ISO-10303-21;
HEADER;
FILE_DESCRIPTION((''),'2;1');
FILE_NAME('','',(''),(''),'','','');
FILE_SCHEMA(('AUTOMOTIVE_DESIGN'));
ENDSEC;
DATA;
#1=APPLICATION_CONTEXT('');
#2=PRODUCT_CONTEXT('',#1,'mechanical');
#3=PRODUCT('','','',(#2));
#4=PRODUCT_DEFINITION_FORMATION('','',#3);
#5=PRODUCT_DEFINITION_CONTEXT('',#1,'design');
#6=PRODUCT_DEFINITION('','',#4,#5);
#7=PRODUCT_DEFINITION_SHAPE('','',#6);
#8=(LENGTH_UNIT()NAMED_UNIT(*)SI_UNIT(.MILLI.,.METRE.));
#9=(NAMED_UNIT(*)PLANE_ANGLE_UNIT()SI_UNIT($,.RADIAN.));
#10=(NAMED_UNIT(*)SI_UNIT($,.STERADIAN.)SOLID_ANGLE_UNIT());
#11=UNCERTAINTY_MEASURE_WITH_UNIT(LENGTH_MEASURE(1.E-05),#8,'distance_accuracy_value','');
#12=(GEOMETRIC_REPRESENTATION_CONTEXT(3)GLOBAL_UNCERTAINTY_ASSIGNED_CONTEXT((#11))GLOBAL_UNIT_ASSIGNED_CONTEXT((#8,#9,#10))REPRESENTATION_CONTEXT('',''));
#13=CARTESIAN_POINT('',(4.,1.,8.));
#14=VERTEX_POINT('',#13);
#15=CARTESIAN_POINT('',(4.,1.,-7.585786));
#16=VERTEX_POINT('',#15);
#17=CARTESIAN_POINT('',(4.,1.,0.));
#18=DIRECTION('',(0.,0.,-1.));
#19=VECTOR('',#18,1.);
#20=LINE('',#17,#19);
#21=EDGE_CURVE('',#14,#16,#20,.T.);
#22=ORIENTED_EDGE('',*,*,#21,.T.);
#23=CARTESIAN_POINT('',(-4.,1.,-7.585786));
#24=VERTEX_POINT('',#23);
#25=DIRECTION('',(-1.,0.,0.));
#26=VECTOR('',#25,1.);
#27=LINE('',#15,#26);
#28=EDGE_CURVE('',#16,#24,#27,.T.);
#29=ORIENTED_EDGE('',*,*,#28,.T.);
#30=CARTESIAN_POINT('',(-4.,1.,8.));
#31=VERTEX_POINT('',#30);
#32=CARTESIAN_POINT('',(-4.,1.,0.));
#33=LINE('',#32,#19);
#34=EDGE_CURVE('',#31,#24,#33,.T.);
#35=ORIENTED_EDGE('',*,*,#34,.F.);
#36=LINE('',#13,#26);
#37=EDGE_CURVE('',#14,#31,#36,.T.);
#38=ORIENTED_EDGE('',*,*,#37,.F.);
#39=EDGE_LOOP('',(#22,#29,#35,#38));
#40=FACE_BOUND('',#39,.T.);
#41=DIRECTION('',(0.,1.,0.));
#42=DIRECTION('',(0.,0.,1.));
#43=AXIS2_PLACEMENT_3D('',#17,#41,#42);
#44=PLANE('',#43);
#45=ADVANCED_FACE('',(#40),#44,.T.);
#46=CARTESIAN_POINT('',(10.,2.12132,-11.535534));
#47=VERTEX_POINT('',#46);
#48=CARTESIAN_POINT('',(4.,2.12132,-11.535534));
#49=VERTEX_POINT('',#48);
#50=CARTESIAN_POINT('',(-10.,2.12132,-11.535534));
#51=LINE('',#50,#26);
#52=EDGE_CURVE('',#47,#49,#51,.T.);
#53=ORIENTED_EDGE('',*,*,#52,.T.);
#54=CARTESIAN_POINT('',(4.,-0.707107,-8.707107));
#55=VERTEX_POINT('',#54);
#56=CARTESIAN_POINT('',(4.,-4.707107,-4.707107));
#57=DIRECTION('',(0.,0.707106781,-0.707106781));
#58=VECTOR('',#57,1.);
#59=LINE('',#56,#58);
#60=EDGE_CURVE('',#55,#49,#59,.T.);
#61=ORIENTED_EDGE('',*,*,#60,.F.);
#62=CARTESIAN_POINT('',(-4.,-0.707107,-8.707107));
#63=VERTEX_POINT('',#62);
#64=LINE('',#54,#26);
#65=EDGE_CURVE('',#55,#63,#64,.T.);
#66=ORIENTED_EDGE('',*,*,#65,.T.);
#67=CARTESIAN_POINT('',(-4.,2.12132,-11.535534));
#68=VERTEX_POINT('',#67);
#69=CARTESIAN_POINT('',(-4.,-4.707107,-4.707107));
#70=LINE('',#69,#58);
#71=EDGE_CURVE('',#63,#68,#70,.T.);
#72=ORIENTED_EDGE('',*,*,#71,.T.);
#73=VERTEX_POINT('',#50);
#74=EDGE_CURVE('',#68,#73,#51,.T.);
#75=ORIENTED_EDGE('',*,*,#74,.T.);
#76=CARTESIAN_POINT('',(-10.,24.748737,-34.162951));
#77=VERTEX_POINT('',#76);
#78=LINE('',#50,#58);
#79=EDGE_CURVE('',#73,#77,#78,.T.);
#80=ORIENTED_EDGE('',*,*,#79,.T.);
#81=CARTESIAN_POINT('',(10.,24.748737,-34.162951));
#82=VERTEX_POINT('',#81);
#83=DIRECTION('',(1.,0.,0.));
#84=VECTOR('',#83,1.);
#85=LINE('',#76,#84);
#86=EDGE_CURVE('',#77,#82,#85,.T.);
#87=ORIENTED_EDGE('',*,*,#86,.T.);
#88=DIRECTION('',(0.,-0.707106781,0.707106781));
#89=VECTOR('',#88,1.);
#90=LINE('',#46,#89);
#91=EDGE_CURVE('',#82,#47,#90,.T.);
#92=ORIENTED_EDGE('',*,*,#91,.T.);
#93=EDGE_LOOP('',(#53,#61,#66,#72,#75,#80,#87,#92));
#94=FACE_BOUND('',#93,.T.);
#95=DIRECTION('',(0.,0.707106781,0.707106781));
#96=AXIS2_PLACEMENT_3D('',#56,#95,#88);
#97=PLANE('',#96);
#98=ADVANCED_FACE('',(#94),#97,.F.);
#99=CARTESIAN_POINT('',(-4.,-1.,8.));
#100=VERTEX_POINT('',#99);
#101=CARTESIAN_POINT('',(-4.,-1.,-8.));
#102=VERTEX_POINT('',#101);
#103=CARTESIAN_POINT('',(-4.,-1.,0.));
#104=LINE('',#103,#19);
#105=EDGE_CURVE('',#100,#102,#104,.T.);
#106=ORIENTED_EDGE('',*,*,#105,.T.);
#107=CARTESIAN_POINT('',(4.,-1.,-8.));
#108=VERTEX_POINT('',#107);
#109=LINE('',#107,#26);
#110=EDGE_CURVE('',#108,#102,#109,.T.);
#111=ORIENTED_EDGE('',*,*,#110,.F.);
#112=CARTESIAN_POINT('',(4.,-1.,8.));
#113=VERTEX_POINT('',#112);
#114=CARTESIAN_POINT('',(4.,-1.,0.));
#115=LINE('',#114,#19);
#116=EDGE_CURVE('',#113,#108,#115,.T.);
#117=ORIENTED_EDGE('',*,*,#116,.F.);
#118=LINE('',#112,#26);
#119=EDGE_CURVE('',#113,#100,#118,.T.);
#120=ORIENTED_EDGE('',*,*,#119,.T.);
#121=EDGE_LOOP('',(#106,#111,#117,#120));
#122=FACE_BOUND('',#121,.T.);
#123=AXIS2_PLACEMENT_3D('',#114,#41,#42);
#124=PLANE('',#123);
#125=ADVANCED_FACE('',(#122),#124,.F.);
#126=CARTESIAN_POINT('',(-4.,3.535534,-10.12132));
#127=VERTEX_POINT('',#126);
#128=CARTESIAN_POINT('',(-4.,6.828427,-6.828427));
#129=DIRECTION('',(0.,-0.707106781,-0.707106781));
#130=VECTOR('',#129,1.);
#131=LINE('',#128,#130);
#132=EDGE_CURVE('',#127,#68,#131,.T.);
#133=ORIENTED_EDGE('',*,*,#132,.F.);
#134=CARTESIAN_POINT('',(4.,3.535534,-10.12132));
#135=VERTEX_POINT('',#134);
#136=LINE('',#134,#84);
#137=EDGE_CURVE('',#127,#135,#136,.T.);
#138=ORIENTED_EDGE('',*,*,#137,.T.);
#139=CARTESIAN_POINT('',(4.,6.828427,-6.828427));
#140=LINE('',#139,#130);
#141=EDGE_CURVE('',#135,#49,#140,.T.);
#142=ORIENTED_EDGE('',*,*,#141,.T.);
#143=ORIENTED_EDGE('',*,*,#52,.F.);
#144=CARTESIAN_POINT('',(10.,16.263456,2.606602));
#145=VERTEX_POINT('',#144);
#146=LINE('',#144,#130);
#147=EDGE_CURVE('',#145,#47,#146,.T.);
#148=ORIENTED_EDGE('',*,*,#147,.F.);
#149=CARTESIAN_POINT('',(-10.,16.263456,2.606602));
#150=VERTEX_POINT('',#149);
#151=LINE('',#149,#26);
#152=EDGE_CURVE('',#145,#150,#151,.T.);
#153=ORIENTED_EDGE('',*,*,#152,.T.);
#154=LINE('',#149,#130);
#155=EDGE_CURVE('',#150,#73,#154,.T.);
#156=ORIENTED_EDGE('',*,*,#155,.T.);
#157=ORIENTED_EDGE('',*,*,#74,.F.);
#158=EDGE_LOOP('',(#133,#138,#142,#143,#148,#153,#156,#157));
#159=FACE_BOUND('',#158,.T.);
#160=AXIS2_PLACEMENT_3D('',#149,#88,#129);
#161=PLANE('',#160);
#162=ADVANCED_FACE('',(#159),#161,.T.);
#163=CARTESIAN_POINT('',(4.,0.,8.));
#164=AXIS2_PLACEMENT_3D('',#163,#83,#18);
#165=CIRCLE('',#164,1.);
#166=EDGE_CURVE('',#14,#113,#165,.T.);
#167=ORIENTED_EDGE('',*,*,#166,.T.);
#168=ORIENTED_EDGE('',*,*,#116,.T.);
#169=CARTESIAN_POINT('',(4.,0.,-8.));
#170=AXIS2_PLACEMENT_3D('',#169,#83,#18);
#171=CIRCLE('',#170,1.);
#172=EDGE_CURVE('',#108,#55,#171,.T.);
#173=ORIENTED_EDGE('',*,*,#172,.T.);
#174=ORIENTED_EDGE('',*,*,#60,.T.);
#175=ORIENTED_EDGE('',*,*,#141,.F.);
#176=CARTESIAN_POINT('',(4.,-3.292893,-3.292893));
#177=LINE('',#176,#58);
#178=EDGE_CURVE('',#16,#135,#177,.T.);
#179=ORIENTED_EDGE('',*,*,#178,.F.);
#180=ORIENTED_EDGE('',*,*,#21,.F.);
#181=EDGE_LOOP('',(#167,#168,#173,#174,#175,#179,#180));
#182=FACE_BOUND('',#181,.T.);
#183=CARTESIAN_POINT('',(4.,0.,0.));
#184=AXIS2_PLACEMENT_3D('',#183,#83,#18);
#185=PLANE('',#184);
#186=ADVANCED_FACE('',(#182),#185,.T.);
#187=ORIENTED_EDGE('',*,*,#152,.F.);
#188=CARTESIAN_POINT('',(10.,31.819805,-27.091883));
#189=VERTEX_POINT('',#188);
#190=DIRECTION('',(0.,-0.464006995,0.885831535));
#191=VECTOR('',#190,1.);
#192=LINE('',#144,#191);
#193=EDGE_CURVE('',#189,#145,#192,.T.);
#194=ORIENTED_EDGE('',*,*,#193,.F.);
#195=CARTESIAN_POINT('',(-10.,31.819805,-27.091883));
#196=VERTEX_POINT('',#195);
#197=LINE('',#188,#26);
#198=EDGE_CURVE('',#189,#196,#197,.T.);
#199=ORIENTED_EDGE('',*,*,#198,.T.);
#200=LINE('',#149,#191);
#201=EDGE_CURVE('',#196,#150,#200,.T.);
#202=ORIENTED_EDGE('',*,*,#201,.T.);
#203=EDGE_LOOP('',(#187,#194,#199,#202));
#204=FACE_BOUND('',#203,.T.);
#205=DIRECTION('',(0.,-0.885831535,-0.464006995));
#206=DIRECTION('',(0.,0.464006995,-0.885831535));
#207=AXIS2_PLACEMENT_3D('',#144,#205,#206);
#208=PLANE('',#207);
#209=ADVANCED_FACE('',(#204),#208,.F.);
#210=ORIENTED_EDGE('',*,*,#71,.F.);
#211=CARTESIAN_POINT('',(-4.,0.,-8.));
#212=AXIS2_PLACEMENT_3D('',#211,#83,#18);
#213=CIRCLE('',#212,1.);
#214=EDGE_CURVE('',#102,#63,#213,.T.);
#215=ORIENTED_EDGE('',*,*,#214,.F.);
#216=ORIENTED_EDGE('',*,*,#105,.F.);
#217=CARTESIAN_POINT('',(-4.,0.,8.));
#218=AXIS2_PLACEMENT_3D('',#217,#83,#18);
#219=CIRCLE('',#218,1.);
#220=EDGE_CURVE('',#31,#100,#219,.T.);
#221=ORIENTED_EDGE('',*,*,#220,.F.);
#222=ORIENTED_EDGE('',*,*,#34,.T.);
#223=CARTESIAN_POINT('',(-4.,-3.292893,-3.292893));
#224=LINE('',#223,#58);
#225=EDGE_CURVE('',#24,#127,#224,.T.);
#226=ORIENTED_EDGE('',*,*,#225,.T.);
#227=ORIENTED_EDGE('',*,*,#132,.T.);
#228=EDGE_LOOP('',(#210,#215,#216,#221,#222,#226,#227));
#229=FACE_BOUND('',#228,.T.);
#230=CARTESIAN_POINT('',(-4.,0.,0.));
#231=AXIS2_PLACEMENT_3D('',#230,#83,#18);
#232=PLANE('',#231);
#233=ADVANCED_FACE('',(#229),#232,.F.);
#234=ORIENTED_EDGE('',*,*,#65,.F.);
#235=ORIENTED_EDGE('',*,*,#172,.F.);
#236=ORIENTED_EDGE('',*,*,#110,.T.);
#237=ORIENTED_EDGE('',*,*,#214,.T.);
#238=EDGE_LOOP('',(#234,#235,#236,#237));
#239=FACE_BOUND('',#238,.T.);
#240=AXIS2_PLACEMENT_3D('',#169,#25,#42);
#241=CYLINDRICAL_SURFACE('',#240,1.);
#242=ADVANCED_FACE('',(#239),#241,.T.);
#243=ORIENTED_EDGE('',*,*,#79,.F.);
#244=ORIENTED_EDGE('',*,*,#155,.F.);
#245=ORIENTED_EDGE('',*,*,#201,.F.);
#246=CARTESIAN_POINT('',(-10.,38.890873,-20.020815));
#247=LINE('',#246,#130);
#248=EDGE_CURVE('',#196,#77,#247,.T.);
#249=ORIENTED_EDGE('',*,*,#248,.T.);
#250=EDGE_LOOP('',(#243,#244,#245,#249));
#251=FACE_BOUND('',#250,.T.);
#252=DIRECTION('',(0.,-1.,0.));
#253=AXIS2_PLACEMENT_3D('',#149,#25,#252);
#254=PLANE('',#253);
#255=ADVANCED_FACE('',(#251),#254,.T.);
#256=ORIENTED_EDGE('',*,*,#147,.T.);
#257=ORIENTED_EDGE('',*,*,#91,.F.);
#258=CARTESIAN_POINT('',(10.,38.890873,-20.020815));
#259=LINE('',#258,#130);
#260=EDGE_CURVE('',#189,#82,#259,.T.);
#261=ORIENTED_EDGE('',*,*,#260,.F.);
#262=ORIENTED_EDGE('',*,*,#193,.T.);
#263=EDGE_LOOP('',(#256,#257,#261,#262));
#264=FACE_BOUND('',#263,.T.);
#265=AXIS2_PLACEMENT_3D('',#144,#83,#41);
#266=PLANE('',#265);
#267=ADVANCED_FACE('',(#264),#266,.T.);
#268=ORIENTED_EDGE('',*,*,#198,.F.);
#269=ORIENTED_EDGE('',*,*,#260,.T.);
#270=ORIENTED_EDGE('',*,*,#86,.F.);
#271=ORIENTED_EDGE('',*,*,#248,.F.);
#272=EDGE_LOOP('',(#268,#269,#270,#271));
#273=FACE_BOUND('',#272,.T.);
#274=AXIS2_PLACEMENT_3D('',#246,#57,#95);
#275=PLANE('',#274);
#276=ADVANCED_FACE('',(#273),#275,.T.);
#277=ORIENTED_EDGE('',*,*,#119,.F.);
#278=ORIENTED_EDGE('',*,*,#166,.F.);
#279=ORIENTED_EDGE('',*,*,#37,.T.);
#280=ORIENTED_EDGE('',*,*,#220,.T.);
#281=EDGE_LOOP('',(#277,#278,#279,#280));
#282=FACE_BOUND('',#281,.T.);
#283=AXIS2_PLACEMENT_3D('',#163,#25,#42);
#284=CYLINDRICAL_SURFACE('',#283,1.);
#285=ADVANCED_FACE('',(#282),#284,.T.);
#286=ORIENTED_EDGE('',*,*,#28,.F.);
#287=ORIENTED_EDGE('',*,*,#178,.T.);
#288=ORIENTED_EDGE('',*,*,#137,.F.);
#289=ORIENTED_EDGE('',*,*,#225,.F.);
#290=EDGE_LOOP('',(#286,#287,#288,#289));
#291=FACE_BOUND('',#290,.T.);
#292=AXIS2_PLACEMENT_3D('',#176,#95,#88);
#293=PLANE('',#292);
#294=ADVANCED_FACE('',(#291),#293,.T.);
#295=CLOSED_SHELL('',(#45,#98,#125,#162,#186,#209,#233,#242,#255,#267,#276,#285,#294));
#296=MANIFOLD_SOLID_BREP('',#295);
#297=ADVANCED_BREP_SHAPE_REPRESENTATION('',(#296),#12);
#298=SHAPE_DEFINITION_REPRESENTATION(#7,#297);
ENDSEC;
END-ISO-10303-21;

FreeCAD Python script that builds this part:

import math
import FreeCAD as App
import Part
import Sketcher

V = App.Vector
Q = App.Units.Quantity


def add_polygon(sketch, points):
    """Adds a closed chain of lines whose ends are joined by coincident constraints."""
    first, n = sketch.GeometryCount, len(points)
    for a, b in zip(points, points[1:] + points[:1]):
        sketch.addGeometry(Part.LineSegment(App.Vector(*a, 0), App.Vector(*b, 0)), False)
    for i in range(n):
        sketch.addConstraint(Sketcher.Constraint("Coincident", first + i, 2, first + (i + 1) % n, 1))

doc = App.newDocument("Part")
body = doc.addObject("PartDesign::Body", "Body")

# Sketch on YZ plane
sketch1 = body.newObject("Sketcher::SketchObject", "Sketch")
sketch1.AttachmentSupport = (doc.getObject("YZ_Plane"), [""])
sketch1.MapMode = "FlatFace"
sketch1.addGeometry([
    Part.LineSegment(V(1, -7.6, 0), V(1, 8, 0)),  # 0
    Part.ArcOfCircle(Part.Circle(V(0, 8, 0), V(0, 0, 1), 1), math.radians(0), math.radians(180)),  # 1
    Part.LineSegment(V(-1, 8, 0), V(-1, -8, 0)),  # 2
    Part.ArcOfCircle(Part.Circle(V(0, -8, 0), V(0, 0, 1), 1), math.radians(180), math.radians(225)),  # 3
    Part.LineSegment(V(-0.7, -8.7, 0), V(19.1, -28.5, 0)),  # 4
    Part.ArcOfCircle(Part.Circle(V(19.8, -27.8, 0), V(0, 0, 1), 1), math.radians(-135), math.radians(45)),  # 5
    Part.LineSegment(V(20.5, -27.1, 0), V(1, -7.6, 0)),  # 6
], False)
sketch1.addConstraint([
    Sketcher.Constraint("Tangent", 0, 2, 1, 1),
    Sketcher.Constraint("Tangent", 1, 2, 2, 1),
    Sketcher.Constraint("Tangent", 2, 2, 3, 1),
    Sketcher.Constraint("Tangent", 3, 2, 4, 1),
    Sketcher.Constraint("Tangent", 4, 2, 5, 1),
    Sketcher.Constraint("Tangent", 5, 2, 6, 1),
    Sketcher.Constraint("Coincident", 6, 2, 0, 1),
    Sketcher.Constraint("Vertical", 0),
    Sketcher.Constraint("Vertical", 2),
    Sketcher.Constraint("Equal", 1, 3),
    Sketcher.Constraint("Equal", 3, 5),
    Sketcher.Constraint("Symmetric", 1, 3, 3, 3, -1, 1),
    Sketcher.Constraint("Parallel", 4, 6),
    Sketcher.Constraint("Radius", 1, 1.0),
    Sketcher.Constraint("DistanceY", 2, 2, 2, 1, 16.0),
    Sketcher.Constraint("Angle", 4, Q("-45 deg")),
    Sketcher.Constraint("Distance", 4, 28.0),
])
pad1 = body.newObject("PartDesign::Pad", "Pad")
pad1.Profile = sketch1
pad1.Length = 8
pad1.Midplane = True

# Sketch on an angled plane
sketch2 = body.newObject("Sketcher::SketchObject", "Sketch001")
sketch2.Placement = App.Placement(V(0, -4.707107, -4.707107), App.Rotation(V(1, 0, 0), V(0, -0.707106781, 0.707106781), V(0, -0.707106781, -0.707106781), "ZXY"))
add_polygon(sketch2, [(-10, -10), (-10, -42), (10, -42), (10, -10)])  # lines 0-3
sketch2.addConstraint([
    Sketcher.Constraint("Vertical", 0),
    Sketcher.Constraint("Horizontal", 1),
    Sketcher.Constraint("Vertical", 2),
    Sketcher.Constraint("Horizontal", 3),
    Sketcher.Constraint("DistanceX", 1, 1, 1, 2, 20.0),
    Sketcher.Constraint("DistanceY", 0, 2, 0, 1, 32.0),
    Sketcher.Constraint("DistanceX", 0, 2, -1, 1, 10.0),
    Sketcher.Constraint("DistanceY", 0, 2, -1, 1, 41.656854),
])
pad2 = body.newObject("PartDesign::Pad", "Pad001")
pad2.Profile = sketch2
pad2.Length = 20
pad2.Reversed = True

# Sketch on YZ plane
sketch3 = body.newObject("Sketcher::SketchObject", "Sketch002")
sketch3.AttachmentSupport = (doc.getObject("YZ_Plane"), [""])
sketch3.MapMode = "FlatFace"
sketch3.AttachmentOffset = App.Placement(V(0, 0, -10), App.Rotation())
add_polygon(sketch3, [(32, -27), (16, 3), (39, -20)])  # lines 0-2
sketch3.addConstraint([
    Sketcher.Constraint("Perpendicular", 1, 2),
    Sketcher.Constraint("Angle", 1, Q("-45 deg")),
    Sketcher.Constraint("Distance", 1, 32.0),
    Sketcher.Constraint("Distance", 2, 10.0),
    Sketcher.Constraint("DistanceY", -1, 1, 0, 2, 2.606602),
    Sketcher.Constraint("DistanceX", -1, 1, 0, 2, 16.263456),
])
pocket1 = body.newObject("PartDesign::Pocket", "Pocket")
pocket1.Profile = sketch3
pocket1.Length = 20
pocket1.Reversed = True

doc.recompute()
